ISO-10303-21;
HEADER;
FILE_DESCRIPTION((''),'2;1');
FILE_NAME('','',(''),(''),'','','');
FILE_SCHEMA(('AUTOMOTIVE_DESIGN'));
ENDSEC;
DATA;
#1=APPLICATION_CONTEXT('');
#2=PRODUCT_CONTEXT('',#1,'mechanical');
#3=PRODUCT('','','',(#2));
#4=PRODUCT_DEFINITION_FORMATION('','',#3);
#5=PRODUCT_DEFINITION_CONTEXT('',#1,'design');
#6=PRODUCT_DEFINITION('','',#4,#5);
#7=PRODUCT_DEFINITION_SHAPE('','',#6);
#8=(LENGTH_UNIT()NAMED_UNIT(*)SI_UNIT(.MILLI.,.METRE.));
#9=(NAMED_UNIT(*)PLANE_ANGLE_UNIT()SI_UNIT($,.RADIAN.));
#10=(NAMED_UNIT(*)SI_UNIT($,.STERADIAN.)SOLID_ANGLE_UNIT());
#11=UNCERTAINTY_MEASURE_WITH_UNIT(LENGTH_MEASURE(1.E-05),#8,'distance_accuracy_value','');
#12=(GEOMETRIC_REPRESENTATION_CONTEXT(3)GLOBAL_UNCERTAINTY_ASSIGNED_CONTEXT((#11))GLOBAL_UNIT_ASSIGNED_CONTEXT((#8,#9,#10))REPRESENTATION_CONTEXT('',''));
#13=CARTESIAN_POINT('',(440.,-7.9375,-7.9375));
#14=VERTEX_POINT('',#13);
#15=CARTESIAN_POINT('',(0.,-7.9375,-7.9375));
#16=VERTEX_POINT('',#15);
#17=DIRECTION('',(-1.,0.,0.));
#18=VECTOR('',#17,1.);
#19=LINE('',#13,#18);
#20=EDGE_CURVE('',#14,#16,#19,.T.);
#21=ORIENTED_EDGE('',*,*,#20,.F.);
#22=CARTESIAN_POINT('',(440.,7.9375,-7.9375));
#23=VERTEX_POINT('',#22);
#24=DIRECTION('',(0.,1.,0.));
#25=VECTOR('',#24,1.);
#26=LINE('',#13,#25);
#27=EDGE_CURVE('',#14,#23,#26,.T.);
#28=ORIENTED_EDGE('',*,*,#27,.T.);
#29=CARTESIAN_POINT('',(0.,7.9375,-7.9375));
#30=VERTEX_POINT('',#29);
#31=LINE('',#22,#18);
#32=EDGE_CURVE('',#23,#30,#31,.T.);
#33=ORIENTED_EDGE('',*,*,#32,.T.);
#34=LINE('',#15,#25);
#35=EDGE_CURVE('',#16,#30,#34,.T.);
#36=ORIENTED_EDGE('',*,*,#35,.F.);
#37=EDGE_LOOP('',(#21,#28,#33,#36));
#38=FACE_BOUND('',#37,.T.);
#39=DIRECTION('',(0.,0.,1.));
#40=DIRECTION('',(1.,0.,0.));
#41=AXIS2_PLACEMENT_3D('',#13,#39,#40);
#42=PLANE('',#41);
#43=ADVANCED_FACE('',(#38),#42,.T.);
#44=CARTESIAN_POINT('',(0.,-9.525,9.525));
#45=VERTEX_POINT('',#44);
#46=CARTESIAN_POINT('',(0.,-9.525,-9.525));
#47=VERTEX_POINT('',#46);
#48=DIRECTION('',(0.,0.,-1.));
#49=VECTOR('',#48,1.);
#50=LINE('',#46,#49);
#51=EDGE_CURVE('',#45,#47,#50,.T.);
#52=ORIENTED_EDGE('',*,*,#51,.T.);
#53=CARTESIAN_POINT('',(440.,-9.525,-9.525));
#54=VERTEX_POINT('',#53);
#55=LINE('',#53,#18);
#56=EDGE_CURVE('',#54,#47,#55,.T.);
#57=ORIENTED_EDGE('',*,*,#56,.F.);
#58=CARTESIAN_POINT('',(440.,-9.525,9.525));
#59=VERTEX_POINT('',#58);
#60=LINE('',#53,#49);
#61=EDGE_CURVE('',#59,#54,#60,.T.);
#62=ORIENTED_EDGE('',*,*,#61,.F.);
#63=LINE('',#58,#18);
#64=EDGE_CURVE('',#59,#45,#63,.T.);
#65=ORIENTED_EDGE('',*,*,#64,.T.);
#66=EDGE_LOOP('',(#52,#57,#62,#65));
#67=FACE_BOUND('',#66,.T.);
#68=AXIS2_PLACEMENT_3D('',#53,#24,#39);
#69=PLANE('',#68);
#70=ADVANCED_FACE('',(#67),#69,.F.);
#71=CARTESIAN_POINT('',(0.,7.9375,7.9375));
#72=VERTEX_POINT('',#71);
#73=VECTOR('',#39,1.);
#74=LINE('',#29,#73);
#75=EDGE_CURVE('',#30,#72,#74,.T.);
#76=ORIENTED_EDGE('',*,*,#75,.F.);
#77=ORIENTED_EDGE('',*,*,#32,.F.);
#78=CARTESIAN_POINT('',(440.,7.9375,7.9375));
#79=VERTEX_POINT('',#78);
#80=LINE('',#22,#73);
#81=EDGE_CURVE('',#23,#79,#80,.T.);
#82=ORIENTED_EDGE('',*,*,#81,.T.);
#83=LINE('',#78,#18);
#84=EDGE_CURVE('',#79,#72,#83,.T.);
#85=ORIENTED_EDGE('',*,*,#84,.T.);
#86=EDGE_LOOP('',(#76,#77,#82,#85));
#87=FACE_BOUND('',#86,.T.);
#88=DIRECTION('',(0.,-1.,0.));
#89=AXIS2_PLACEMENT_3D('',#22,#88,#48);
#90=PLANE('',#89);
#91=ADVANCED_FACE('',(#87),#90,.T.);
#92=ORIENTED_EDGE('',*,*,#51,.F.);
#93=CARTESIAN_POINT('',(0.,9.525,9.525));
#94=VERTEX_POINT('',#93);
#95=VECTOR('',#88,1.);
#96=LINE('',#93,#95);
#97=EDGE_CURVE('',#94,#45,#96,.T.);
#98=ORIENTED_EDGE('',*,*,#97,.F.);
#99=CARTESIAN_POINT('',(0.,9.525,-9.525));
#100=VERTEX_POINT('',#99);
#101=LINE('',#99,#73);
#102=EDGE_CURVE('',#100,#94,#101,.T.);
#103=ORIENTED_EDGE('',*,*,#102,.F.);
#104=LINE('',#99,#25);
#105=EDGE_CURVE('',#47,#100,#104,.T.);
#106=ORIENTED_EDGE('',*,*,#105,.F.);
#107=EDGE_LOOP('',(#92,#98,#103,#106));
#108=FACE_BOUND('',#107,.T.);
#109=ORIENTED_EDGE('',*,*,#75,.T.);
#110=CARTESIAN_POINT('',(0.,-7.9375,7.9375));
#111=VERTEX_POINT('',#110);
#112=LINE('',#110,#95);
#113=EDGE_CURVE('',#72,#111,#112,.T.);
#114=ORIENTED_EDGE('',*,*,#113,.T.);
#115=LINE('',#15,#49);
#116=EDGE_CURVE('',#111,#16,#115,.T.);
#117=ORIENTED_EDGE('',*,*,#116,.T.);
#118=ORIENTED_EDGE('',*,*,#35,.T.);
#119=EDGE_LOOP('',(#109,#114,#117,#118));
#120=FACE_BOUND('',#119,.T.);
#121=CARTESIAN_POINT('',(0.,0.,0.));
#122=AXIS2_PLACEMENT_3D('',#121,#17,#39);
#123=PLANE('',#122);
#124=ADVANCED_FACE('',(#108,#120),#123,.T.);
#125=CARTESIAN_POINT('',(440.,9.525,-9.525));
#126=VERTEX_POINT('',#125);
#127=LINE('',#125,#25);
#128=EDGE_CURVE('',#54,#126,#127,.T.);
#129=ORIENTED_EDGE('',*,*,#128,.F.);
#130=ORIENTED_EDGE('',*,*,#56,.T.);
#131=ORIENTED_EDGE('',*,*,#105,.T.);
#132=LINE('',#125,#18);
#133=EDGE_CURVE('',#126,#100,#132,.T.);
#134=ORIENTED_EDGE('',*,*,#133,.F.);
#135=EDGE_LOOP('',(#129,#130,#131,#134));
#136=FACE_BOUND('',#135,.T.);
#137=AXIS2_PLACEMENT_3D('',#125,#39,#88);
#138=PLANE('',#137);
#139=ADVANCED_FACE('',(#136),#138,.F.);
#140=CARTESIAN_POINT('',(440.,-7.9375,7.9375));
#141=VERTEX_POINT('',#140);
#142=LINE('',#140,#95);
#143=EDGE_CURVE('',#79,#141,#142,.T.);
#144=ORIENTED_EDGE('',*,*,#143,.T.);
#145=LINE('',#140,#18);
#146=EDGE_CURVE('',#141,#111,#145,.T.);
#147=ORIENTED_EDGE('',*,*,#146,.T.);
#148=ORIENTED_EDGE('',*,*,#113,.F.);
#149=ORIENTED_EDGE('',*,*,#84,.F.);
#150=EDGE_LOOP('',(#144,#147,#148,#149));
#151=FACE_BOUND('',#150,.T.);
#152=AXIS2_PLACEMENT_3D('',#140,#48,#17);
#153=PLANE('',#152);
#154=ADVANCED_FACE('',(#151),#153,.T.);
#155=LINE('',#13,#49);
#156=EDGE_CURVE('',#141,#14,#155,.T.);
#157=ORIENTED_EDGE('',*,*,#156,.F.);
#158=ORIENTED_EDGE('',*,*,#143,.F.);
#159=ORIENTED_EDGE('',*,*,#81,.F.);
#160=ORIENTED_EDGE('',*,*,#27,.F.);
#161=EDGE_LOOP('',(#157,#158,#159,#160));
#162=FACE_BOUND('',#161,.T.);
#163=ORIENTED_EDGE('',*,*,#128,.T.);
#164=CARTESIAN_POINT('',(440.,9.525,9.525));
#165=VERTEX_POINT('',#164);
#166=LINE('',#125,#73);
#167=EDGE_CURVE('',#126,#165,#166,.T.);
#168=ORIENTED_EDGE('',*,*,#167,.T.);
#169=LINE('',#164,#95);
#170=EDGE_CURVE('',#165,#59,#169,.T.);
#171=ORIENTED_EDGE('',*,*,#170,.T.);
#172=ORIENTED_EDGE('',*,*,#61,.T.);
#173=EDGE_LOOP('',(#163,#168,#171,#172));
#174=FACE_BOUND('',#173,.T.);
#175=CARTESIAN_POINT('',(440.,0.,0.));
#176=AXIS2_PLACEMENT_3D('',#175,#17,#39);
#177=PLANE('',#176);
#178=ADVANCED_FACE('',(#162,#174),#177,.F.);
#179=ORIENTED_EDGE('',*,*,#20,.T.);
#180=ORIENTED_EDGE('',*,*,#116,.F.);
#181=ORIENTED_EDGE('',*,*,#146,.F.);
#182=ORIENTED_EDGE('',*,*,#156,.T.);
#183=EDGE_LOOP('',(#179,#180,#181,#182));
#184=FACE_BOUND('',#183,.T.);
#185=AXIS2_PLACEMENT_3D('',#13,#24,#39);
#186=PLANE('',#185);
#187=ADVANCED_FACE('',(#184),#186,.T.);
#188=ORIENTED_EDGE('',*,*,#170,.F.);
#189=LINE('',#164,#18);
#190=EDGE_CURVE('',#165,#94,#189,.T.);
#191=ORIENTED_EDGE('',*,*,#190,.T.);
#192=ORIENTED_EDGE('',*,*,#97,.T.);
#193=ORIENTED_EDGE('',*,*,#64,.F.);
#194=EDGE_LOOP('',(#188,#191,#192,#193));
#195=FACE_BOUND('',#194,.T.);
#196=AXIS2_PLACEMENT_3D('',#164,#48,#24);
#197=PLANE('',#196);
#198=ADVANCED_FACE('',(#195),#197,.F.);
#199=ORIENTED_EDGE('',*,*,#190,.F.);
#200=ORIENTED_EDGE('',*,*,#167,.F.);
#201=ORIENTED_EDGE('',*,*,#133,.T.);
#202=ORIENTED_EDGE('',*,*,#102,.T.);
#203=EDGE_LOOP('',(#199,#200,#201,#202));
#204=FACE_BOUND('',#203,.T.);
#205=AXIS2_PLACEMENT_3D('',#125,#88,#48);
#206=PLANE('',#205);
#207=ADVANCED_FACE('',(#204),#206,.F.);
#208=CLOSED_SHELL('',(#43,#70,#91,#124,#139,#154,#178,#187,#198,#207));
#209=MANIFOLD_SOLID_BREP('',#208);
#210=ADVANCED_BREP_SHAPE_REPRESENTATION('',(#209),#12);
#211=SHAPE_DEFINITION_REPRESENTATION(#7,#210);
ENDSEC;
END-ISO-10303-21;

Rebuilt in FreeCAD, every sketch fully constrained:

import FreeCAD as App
import Part
import Sketcher
from FreeCAD import Vector
Q = App.Units.Quantity


def add_polygon(sketch, points):
    """Adds a closed chain of lines whose ends are joined by coincident constraints."""
    first, n = sketch.GeometryCount, len(points)
    for a, b in zip(points, points[1:] + points[:1]):
        sketch.addGeometry(Part.LineSegment(App.Vector(*a, 0), App.Vector(*b, 0)), False)
    for i in range(n):
        sketch.addConstraint(Sketcher.Constraint("Coincident", first + i, 2, first + (i + 1) % n, 1))

doc = App.newDocument("Part")
body = doc.addObject("PartDesign::Body", "Body")

# Sketch on YZ plane
sketch1 = body.newObject("Sketcher::SketchObject", "Sketch")
sketch1.AttachmentSupport = (doc.getObject("YZ_Plane"), [""])
sketch1.MapMode = "FlatFace"
add_polygon(sketch1, [(10, 10), (-10, 10), (-10, -10), (10, -10)])  # lines 0-3
add_polygon(sketch1, [(-8, -8), (-8, 8), (8, 8), (8, -8)])  # lines 4-7
sketch1.addConstraint(Sketcher.Constraint("Horizontal", 0))
sketch1.addConstraint(Sketcher.Constraint("Vertical", 1))
sketch1.addConstraint(Sketcher.Constraint("Horizontal", 2))
sketch1.addConstraint(Sketcher.Constraint("Vertical", 3))
sketch1.addConstraint(Sketcher.Constraint("Vertical", 4))
sketch1.addConstraint(Sketcher.Constraint("Horizontal", 5))
sketch1.addConstraint(Sketcher.Constraint("Vertical", 6))
sketch1.addConstraint(Sketcher.Constraint("Horizontal", 7))
sketch1.addConstraint(Sketcher.Constraint("Symmetric", 0, 2, 2, 2, -1, 1))
sketch1.addConstraint(Sketcher.Constraint("Symmetric", 4, 2, 6, 2, -1, 1))
sketch1.addConstraint(Sketcher.Constraint("Equal", 2, 1))
sketch1.addConstraint(Sketcher.Constraint("Equal", 7, 4))
sketch1.addConstraint(Sketcher.Constraint("DistanceX", 0, 2, 0, 1, Q("0.75 in")))
sketch1.addConstraint(Sketcher.Constraint("DistanceX", 5, 1, 5, 2, Q("0.625 in")))
pad1 = body.newObject("PartDesign::Pad", "Pad")
pad1.Profile = sketch1
pad1.Length = 440

doc.recompute()
